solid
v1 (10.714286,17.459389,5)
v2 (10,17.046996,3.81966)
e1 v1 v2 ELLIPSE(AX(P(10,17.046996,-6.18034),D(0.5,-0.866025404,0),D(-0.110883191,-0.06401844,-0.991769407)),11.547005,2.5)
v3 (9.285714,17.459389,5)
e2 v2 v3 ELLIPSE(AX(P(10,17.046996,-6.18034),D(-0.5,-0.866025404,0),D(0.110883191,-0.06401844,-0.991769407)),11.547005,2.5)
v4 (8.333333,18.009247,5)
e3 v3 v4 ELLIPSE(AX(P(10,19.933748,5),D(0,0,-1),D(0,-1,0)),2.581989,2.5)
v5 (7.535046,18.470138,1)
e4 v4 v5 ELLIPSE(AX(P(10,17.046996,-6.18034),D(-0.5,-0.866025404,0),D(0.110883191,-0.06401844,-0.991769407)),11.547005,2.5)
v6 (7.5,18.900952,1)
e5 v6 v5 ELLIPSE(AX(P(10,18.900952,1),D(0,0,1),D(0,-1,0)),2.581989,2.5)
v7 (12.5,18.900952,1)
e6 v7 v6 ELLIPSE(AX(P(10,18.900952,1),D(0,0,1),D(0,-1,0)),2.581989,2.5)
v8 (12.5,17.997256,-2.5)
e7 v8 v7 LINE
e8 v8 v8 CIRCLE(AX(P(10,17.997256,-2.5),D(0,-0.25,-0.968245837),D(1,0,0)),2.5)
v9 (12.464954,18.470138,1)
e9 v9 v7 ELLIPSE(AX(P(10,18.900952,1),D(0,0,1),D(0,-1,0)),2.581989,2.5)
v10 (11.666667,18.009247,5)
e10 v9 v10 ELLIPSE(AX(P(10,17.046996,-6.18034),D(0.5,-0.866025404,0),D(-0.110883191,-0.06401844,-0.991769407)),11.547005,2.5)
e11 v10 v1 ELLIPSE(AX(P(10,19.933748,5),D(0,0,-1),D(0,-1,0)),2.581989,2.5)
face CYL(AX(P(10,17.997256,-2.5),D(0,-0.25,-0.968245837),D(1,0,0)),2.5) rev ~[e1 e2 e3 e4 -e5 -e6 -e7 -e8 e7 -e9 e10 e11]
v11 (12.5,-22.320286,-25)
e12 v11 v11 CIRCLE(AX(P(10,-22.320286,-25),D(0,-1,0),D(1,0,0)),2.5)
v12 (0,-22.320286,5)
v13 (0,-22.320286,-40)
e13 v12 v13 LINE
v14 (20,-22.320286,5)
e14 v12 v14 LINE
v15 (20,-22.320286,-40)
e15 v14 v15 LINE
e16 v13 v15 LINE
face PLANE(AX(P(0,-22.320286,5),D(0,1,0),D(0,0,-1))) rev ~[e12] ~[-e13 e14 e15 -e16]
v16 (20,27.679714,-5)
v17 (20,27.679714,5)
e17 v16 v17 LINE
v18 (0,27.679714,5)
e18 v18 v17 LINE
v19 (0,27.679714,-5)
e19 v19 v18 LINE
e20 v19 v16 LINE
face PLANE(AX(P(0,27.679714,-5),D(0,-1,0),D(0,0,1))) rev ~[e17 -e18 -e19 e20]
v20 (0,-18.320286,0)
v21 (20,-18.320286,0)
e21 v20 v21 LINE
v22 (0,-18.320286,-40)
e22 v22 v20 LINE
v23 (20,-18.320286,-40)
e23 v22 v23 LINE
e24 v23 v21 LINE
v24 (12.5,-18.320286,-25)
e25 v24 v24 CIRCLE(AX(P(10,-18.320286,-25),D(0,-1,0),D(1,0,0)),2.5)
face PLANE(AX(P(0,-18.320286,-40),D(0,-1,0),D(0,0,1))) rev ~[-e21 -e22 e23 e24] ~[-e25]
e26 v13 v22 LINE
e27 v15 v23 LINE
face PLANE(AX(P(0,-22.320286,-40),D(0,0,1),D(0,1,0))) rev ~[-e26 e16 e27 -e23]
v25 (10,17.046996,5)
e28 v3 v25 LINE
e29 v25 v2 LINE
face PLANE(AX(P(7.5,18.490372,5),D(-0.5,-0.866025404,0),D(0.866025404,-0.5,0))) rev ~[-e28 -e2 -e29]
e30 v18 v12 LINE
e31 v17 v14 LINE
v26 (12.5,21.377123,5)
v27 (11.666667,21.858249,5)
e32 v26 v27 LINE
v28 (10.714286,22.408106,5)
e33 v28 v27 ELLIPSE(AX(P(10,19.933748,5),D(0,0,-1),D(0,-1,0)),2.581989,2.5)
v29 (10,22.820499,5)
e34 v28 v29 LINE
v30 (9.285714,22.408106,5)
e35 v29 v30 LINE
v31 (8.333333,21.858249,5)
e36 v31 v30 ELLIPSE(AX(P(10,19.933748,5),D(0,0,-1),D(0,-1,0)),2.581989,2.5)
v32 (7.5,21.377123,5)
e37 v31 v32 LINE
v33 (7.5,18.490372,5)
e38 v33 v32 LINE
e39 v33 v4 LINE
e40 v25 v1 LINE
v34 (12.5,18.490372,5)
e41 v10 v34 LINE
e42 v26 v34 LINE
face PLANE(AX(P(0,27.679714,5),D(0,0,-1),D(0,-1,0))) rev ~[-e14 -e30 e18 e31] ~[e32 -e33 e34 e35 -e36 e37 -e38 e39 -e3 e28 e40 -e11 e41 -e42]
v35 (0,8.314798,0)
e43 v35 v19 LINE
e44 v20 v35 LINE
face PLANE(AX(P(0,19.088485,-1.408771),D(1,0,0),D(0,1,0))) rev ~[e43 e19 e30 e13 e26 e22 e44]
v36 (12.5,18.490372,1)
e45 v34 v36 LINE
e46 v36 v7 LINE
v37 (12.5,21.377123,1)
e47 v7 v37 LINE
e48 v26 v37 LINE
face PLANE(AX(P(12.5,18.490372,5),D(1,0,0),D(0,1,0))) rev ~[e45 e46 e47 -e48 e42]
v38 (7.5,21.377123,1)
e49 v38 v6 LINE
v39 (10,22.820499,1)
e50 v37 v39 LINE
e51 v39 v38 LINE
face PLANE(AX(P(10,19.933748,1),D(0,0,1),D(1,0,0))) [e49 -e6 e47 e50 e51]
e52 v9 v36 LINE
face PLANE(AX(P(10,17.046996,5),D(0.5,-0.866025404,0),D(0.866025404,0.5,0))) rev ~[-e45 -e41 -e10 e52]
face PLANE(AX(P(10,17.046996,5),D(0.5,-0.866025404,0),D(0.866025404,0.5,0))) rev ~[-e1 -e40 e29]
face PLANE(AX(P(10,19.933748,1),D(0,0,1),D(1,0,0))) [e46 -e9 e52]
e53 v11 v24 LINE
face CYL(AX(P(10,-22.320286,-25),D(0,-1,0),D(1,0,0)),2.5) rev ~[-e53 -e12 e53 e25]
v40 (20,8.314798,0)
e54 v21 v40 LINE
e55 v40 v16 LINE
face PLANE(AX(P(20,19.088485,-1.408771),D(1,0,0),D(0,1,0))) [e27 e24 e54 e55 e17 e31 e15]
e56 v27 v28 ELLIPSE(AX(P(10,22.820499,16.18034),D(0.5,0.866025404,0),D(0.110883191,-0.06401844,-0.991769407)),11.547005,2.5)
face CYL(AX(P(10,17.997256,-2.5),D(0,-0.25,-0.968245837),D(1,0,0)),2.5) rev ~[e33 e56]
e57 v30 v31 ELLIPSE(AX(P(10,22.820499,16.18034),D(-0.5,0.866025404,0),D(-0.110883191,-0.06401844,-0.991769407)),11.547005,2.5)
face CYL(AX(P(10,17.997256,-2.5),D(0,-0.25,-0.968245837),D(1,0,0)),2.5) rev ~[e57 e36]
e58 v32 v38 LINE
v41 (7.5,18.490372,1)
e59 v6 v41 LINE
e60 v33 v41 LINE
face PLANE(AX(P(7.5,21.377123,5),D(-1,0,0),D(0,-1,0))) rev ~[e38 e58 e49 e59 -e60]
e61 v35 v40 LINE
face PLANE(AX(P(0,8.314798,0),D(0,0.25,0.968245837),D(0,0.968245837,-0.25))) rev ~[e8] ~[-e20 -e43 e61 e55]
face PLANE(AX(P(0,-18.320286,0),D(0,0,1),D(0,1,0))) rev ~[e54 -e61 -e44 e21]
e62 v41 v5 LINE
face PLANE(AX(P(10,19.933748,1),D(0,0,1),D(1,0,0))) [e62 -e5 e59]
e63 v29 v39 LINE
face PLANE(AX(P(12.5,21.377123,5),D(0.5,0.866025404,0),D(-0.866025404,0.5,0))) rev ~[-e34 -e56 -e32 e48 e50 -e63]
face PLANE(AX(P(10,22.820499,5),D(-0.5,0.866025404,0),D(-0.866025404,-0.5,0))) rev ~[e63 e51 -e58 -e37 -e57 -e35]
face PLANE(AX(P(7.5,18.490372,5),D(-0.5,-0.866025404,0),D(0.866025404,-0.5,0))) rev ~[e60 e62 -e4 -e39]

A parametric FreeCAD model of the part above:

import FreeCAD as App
import Part
import Sketcher
from FreeCAD import Vector
Q = App.Units.Quantity

doc = App.newDocument("Part")
body = doc.addObject("PartDesign::Body", "Body")

# Sketch on YZ plane
sketch1 = body.newObject("Sketcher::SketchObject", "Sketch")
sketch1.AttachmentSupport = (doc.getObject("YZ_Plane"), [""])
sketch1.MapMode = "FlatFace"
sketch1.addGeometry(Part.LineSegment(Vector(27.7, -5, 0), Vector(27.7, 5, 0)), False)
sketch1.addGeometry(Part.LineSegment(Vector(27.7, 5, 0), Vector(-22.3, 5, 0)), False)
sketch1.addGeometry(Part.LineSegment(Vector(-22.3, 5, 0), Vector(-22.3, -40, 0)), False)
sketch1.addGeometry(Part.LineSegment(Vector(-22.3, -40, 0), Vector(-18.3, -40, 0)), False)
sketch1.addGeometry(Part.LineSegment(Vector(-18.3, -40, 0), Vector(-18.3, 0, 0)), False)
sketch1.addGeometry(Part.LineSegment(Vector(-18.3, 0, 0), Vector(8.3, 0, 0)), False)
sketch1.addGeometry(Part.LineSegment(Vector(8.3, 0, 0), Vector(27.7, -5, 0)), False)
sketch1.addConstraint(Sketcher.Constraint("Coincident", 0, 2, 1, 1))
sketch1.addConstraint(Sketcher.Constraint("Coincident", 1, 2, 2, 1))
sketch1.addConstraint(Sketcher.Constraint("Coincident", 2, 2, 3, 1))
sketch1.addConstraint(Sketcher.Constraint("Coincident", 3, 2, 4, 1))
sketch1.addConstraint(Sketcher.Constraint("Coincident", 4, 2, 5, 1))
sketch1.addConstraint(Sketcher.Constraint("Coincident", 5, 2, 6, 1))
sketch1.addConstraint(Sketcher.Constraint("Coincident", 6, 2, 0, 1))
sketch1.addConstraint(Sketcher.Constraint("Vertical", 0))
sketch1.addConstraint(Sketcher.Constraint("Horizontal", 1))
sketch1.addConstraint(Sketcher.Constraint("Vertical", 2))
sketch1.addConstraint(Sketcher.Constraint("Horizontal", 3))
sketch1.addConstraint(Sketcher.Constraint("Vertical", 4))
sketch1.addConstraint(Sketcher.Constraint("Horizontal", 5))
sketch1.addConstraint(Sketcher.Constraint("PointOnObject", 4, 2, -1))
sketch1.addConstraint(Sketcher.Constraint("DistanceX", 1, 2, 1, 1, 50.0))
sketch1.addConstraint(Sketcher.Constraint("DistanceX", 3, 1, 3, 2, 4.0))
sketch1.addConstraint(Sketcher.Constraint("DistanceY", 0, 1, 0, 2, 10.0))
sketch1.addConstraint(Sketcher.Constraint("DistanceY", 2, 2, 2, 1, 45.0))
sketch1.addConstraint(Sketcher.Constraint("DistanceY", 4, 1, 4, 2, 40.0))
sketch1.addConstraint(Sketcher.Constraint("Distance", 6, 20.0))
sketch1.addConstraint(Sketcher.Constraint("DistanceX", -1, 1, 0, 2, 27.679714))
pad1 = body.newObject("PartDesign::Pad", "Pad")
pad1.Profile = sketch1
pad1.Length = 20

# Sketch on XZ plane
sketch2 = body.newObject("Sketcher::SketchObject", "Sketch001")
sketch2.AttachmentSupport = (doc.getObject("XZ_Plane"), [""])
sketch2.MapMode = "FlatFace"
sketch2.AttachmentOffset = App.Placement(Vector(0, 0, 22.320286), App.Rotation())
sketch2.addGeometry(Part.Circle(Vector(10, -25, 0), Vector(0, 0, 1), 2.5), False)
sketch2.addConstraint(Sketcher.Constraint("Diameter", 0, 5.0))
sketch2.addConstraint(Sketcher.Constraint("DistanceX", -1, 1, 0, 3, 10.0))
sketch2.addConstraint(Sketcher.Constraint("DistanceY", 0, 3, -1, 1, 25.0))
pocket1 = body.newObject("PartDesign::Pocket", "Pocket")
pocket1.Profile = sketch2
pocket1.Length = 5

# Sketch on an angled plane
sketch3 = body.newObject("Sketcher::SketchObject", "Sketch002")
sketch3.Placement = App.Placement(Vector(0, 0.519675, 2.012692), App.Rotation(Vector(1, 0, 0), Vector(0, -0.968245837, 0.25), Vector(0, -0.25, -0.968245837), "ZXY"))
sketch3.addGeometry(Part.Circle(Vector(10, -18.1, 0), Vector(0, 0, 1), 2.5), False)
sketch3.addConstraint(Sketcher.Constraint("Diameter", 0, 5.0))
sketch3.addConstraint(Sketcher.Constraint("DistanceX", -1, 1, 0, 3, 10.0))
sketch3.addConstraint(Sketcher.Constraint("DistanceY", 0, 3, -1, 1, 18.050768))
pocket2 = body.newObject("PartDesign::Pocket", "Pocket001")
pocket2.Profile = sketch3
pocket2.Length = 10

# Sketch on XY plane
sketch4 = body.newObject("Sketcher::SketchObject", "Sketch003")
sketch4.AttachmentSupport = (doc.getObject("XY_Plane"), [""])
sketch4.MapMode = "FlatFace"
sketch4.AttachmentOffset = App.Placement(Vector(0, 0, 5), App.Rotation())
sketch4.addGeometry(Part.LineSegment(Vector(12.5, 18.5, 0), Vector(12.5, 21.4, 0)), False)
sketch4.addGeometry(Part.LineSegment(Vector(12.5, 21.4, 0), Vector(10, 22.8, 0)), False)
sketch4.addGeometry(Part.LineSegment(Vector(10, 22.8, 0), Vector(7.5, 21.4, 0)), False)
sketch4.addGeometry(Part.LineSegment(Vector(7.5, 21.4, 0), Vector(7.5, 18.5, 0)), False)
sketch4.addGeometry(Part.LineSegment(Vector(7.5, 18.5, 0), Vector(10, 17, 0)), False)
sketch4.addGeometry(Part.LineSegment(Vector(10, 17, 0), Vector(12.5, 18.5, 0)), False)
sketch4.addConstraint(Sketcher.Constraint("Coincident", 0, 2, 1, 1))
sketch4.addConstraint(Sketcher.Constraint("Coincident", 1, 2, 2, 1))
sketch4.addConstraint(Sketcher.Constraint("Coincident", 2, 2, 3, 1))
sketch4.addConstraint(Sketcher.Constraint("Coincident", 3, 2, 4, 1))
sketch4.addConstraint(Sketcher.Constraint("Coincident", 4, 2, 5, 1))
sketch4.addConstraint(Sketcher.Constraint("Coincident", 5, 2, 0, 1))
sketch4.addConstraint(Sketcher.Constraint("Vertical", 0))
sketch4.addConstraint(Sketcher.Constraint("Vertical", 3))
sketch4.addConstraint(Sketcher.Constraint("Parallel", 1, 4))
sketch4.addConstraint(Sketcher.Constraint("Parallel", 2, 5))
sketch4.addConstraint(Sketcher.Constraint("Horizontal", 0, 2, 2, 2))
sketch4.addConstraint(Sketcher.Constraint("Horizontal", 3, 2, 5, 2))
sketch4.addConstraint(Sketcher.Constraint("Vertical", 1, 2, 4, 2))
sketch4.addConstraint(Sketcher.Constraint("Angle", 1, Q("150 deg")))
sketch4.addConstraint(Sketcher.Constraint("DistanceX", -1, 1, 1, 2, 10.0))
sketch4.addConstraint(Sketcher.Constraint("DistanceX", 2, 2, 0, 2, 5.0))
sketch4.addConstraint(Sketcher.Constraint("DistanceY", 0, 1, 0, 2, 2.886751))
sketch4.addConstraint(Sketcher.Constraint("DistanceY", -1, 1, 1, 2, 22.820499))
pocket3 = body.newObject("PartDesign::Pocket", "Pocket002")
pocket3.Profile = sketch4
pocket3.Length = 4

doc.recompute()
